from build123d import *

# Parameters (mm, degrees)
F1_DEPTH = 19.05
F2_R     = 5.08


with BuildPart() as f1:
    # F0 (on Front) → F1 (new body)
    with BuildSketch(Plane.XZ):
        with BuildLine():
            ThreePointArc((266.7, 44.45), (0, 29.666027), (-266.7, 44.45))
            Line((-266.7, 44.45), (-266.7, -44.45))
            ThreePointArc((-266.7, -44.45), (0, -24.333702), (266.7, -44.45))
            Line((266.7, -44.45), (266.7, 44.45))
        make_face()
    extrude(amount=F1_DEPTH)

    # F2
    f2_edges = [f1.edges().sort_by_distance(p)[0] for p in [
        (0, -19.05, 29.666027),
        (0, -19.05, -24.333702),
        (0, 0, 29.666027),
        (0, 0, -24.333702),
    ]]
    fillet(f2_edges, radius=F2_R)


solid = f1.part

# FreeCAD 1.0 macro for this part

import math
import FreeCAD as App
import Part
import Sketcher
from FreeCAD import Vector
Q = App.Units.Quantity


def edges_at(feature, points):
    """Names of the edges that pass closest to the given points."""
    edges = feature.Shape.Edges
    near = lambda p: min(range(len(edges)), key=lambda i: edges[i].distToShape(Part.Vertex(*p))[0])
    return sorted({f"Edge{near(p) + 1}" for p in points})

doc = App.newDocument("Part")
body = doc.addObject("PartDesign::Body", "Body")

sketch1 = doc.addObject("Sketcher::SketchObject", "Sketch")
body.addObject(sketch1)
sketch1.AttachmentSupport = (doc.XZ_Plane, [""])
sketch1.MapMode = "FlatFace"
sketch1.addGeometry([
    Part.ArcOfCircle(Part.Circle(Vector(0, 2443, 0), Vector(0, 0, 1), 2413), math.radians(-96.35), math.radians(-83.65)),
    Part.LineSegment(Vector(-267, 44, 0), Vector(-267, -44, 0)),
    Part.ArcOfCircle(Part.Circle(Vector(0, -1802, 0), Vector(0, 0, 1), 1778), math.radians(81.37), math.radians(98.63)),
    Part.LineSegment(Vector(267, -44, 0), Vector(267, 44, 0)),
], False)
sketch1.addConstraint([
    Sketcher.Constraint("Coincident", 0, 1, 1, 1),
    Sketcher.Constraint("Coincident", 1, 2, 2, 2),
    Sketcher.Constraint("Coincident", 2, 1, 3, 1),
    Sketcher.Constraint("Coincident", 3, 2, 0, 2),
    Sketcher.Constraint("Vertical", 1),
    Sketcher.Constraint("Vertical", 3),
    Sketcher.Constraint("Symmetric", 1, 2, 3, 2, -1, 1),
    Sketcher.Constraint("PointOnObject", 0, 3, -2),
    Sketcher.Constraint("PointOnObject", 2, 3, -2),
    Sketcher.Constraint("DistanceY", 1, 2, 1, 1, Q("3.5 in")),
    Sketcher.Constraint("DistanceX", 1, 2, 3, 2, Q("21 in")),
    Sketcher.Constraint("Radius", 0, 2413.000073),
    Sketcher.Constraint("Radius", 2, 1777.999994),
])
pad1 = doc.addObject("PartDesign::Pad", "Pad")
body.addObject(pad1)
pad1.Profile = sketch1
pad1.Length = Q("0.75 in")
doc.recompute()

fillet = doc.addObject("PartDesign::Fillet", "Fillet")
body.addObject(fillet)
fillet.Base = (pad1, edges_at(pad1, [
    (0, -19.05, 29.666),
    (0, -19.05, -24.334),
    (0, 0, 29.666),
    (0, 0, -24.334),
]))
fillet.Radius = Q("0.2 in")

doc.recompute()
